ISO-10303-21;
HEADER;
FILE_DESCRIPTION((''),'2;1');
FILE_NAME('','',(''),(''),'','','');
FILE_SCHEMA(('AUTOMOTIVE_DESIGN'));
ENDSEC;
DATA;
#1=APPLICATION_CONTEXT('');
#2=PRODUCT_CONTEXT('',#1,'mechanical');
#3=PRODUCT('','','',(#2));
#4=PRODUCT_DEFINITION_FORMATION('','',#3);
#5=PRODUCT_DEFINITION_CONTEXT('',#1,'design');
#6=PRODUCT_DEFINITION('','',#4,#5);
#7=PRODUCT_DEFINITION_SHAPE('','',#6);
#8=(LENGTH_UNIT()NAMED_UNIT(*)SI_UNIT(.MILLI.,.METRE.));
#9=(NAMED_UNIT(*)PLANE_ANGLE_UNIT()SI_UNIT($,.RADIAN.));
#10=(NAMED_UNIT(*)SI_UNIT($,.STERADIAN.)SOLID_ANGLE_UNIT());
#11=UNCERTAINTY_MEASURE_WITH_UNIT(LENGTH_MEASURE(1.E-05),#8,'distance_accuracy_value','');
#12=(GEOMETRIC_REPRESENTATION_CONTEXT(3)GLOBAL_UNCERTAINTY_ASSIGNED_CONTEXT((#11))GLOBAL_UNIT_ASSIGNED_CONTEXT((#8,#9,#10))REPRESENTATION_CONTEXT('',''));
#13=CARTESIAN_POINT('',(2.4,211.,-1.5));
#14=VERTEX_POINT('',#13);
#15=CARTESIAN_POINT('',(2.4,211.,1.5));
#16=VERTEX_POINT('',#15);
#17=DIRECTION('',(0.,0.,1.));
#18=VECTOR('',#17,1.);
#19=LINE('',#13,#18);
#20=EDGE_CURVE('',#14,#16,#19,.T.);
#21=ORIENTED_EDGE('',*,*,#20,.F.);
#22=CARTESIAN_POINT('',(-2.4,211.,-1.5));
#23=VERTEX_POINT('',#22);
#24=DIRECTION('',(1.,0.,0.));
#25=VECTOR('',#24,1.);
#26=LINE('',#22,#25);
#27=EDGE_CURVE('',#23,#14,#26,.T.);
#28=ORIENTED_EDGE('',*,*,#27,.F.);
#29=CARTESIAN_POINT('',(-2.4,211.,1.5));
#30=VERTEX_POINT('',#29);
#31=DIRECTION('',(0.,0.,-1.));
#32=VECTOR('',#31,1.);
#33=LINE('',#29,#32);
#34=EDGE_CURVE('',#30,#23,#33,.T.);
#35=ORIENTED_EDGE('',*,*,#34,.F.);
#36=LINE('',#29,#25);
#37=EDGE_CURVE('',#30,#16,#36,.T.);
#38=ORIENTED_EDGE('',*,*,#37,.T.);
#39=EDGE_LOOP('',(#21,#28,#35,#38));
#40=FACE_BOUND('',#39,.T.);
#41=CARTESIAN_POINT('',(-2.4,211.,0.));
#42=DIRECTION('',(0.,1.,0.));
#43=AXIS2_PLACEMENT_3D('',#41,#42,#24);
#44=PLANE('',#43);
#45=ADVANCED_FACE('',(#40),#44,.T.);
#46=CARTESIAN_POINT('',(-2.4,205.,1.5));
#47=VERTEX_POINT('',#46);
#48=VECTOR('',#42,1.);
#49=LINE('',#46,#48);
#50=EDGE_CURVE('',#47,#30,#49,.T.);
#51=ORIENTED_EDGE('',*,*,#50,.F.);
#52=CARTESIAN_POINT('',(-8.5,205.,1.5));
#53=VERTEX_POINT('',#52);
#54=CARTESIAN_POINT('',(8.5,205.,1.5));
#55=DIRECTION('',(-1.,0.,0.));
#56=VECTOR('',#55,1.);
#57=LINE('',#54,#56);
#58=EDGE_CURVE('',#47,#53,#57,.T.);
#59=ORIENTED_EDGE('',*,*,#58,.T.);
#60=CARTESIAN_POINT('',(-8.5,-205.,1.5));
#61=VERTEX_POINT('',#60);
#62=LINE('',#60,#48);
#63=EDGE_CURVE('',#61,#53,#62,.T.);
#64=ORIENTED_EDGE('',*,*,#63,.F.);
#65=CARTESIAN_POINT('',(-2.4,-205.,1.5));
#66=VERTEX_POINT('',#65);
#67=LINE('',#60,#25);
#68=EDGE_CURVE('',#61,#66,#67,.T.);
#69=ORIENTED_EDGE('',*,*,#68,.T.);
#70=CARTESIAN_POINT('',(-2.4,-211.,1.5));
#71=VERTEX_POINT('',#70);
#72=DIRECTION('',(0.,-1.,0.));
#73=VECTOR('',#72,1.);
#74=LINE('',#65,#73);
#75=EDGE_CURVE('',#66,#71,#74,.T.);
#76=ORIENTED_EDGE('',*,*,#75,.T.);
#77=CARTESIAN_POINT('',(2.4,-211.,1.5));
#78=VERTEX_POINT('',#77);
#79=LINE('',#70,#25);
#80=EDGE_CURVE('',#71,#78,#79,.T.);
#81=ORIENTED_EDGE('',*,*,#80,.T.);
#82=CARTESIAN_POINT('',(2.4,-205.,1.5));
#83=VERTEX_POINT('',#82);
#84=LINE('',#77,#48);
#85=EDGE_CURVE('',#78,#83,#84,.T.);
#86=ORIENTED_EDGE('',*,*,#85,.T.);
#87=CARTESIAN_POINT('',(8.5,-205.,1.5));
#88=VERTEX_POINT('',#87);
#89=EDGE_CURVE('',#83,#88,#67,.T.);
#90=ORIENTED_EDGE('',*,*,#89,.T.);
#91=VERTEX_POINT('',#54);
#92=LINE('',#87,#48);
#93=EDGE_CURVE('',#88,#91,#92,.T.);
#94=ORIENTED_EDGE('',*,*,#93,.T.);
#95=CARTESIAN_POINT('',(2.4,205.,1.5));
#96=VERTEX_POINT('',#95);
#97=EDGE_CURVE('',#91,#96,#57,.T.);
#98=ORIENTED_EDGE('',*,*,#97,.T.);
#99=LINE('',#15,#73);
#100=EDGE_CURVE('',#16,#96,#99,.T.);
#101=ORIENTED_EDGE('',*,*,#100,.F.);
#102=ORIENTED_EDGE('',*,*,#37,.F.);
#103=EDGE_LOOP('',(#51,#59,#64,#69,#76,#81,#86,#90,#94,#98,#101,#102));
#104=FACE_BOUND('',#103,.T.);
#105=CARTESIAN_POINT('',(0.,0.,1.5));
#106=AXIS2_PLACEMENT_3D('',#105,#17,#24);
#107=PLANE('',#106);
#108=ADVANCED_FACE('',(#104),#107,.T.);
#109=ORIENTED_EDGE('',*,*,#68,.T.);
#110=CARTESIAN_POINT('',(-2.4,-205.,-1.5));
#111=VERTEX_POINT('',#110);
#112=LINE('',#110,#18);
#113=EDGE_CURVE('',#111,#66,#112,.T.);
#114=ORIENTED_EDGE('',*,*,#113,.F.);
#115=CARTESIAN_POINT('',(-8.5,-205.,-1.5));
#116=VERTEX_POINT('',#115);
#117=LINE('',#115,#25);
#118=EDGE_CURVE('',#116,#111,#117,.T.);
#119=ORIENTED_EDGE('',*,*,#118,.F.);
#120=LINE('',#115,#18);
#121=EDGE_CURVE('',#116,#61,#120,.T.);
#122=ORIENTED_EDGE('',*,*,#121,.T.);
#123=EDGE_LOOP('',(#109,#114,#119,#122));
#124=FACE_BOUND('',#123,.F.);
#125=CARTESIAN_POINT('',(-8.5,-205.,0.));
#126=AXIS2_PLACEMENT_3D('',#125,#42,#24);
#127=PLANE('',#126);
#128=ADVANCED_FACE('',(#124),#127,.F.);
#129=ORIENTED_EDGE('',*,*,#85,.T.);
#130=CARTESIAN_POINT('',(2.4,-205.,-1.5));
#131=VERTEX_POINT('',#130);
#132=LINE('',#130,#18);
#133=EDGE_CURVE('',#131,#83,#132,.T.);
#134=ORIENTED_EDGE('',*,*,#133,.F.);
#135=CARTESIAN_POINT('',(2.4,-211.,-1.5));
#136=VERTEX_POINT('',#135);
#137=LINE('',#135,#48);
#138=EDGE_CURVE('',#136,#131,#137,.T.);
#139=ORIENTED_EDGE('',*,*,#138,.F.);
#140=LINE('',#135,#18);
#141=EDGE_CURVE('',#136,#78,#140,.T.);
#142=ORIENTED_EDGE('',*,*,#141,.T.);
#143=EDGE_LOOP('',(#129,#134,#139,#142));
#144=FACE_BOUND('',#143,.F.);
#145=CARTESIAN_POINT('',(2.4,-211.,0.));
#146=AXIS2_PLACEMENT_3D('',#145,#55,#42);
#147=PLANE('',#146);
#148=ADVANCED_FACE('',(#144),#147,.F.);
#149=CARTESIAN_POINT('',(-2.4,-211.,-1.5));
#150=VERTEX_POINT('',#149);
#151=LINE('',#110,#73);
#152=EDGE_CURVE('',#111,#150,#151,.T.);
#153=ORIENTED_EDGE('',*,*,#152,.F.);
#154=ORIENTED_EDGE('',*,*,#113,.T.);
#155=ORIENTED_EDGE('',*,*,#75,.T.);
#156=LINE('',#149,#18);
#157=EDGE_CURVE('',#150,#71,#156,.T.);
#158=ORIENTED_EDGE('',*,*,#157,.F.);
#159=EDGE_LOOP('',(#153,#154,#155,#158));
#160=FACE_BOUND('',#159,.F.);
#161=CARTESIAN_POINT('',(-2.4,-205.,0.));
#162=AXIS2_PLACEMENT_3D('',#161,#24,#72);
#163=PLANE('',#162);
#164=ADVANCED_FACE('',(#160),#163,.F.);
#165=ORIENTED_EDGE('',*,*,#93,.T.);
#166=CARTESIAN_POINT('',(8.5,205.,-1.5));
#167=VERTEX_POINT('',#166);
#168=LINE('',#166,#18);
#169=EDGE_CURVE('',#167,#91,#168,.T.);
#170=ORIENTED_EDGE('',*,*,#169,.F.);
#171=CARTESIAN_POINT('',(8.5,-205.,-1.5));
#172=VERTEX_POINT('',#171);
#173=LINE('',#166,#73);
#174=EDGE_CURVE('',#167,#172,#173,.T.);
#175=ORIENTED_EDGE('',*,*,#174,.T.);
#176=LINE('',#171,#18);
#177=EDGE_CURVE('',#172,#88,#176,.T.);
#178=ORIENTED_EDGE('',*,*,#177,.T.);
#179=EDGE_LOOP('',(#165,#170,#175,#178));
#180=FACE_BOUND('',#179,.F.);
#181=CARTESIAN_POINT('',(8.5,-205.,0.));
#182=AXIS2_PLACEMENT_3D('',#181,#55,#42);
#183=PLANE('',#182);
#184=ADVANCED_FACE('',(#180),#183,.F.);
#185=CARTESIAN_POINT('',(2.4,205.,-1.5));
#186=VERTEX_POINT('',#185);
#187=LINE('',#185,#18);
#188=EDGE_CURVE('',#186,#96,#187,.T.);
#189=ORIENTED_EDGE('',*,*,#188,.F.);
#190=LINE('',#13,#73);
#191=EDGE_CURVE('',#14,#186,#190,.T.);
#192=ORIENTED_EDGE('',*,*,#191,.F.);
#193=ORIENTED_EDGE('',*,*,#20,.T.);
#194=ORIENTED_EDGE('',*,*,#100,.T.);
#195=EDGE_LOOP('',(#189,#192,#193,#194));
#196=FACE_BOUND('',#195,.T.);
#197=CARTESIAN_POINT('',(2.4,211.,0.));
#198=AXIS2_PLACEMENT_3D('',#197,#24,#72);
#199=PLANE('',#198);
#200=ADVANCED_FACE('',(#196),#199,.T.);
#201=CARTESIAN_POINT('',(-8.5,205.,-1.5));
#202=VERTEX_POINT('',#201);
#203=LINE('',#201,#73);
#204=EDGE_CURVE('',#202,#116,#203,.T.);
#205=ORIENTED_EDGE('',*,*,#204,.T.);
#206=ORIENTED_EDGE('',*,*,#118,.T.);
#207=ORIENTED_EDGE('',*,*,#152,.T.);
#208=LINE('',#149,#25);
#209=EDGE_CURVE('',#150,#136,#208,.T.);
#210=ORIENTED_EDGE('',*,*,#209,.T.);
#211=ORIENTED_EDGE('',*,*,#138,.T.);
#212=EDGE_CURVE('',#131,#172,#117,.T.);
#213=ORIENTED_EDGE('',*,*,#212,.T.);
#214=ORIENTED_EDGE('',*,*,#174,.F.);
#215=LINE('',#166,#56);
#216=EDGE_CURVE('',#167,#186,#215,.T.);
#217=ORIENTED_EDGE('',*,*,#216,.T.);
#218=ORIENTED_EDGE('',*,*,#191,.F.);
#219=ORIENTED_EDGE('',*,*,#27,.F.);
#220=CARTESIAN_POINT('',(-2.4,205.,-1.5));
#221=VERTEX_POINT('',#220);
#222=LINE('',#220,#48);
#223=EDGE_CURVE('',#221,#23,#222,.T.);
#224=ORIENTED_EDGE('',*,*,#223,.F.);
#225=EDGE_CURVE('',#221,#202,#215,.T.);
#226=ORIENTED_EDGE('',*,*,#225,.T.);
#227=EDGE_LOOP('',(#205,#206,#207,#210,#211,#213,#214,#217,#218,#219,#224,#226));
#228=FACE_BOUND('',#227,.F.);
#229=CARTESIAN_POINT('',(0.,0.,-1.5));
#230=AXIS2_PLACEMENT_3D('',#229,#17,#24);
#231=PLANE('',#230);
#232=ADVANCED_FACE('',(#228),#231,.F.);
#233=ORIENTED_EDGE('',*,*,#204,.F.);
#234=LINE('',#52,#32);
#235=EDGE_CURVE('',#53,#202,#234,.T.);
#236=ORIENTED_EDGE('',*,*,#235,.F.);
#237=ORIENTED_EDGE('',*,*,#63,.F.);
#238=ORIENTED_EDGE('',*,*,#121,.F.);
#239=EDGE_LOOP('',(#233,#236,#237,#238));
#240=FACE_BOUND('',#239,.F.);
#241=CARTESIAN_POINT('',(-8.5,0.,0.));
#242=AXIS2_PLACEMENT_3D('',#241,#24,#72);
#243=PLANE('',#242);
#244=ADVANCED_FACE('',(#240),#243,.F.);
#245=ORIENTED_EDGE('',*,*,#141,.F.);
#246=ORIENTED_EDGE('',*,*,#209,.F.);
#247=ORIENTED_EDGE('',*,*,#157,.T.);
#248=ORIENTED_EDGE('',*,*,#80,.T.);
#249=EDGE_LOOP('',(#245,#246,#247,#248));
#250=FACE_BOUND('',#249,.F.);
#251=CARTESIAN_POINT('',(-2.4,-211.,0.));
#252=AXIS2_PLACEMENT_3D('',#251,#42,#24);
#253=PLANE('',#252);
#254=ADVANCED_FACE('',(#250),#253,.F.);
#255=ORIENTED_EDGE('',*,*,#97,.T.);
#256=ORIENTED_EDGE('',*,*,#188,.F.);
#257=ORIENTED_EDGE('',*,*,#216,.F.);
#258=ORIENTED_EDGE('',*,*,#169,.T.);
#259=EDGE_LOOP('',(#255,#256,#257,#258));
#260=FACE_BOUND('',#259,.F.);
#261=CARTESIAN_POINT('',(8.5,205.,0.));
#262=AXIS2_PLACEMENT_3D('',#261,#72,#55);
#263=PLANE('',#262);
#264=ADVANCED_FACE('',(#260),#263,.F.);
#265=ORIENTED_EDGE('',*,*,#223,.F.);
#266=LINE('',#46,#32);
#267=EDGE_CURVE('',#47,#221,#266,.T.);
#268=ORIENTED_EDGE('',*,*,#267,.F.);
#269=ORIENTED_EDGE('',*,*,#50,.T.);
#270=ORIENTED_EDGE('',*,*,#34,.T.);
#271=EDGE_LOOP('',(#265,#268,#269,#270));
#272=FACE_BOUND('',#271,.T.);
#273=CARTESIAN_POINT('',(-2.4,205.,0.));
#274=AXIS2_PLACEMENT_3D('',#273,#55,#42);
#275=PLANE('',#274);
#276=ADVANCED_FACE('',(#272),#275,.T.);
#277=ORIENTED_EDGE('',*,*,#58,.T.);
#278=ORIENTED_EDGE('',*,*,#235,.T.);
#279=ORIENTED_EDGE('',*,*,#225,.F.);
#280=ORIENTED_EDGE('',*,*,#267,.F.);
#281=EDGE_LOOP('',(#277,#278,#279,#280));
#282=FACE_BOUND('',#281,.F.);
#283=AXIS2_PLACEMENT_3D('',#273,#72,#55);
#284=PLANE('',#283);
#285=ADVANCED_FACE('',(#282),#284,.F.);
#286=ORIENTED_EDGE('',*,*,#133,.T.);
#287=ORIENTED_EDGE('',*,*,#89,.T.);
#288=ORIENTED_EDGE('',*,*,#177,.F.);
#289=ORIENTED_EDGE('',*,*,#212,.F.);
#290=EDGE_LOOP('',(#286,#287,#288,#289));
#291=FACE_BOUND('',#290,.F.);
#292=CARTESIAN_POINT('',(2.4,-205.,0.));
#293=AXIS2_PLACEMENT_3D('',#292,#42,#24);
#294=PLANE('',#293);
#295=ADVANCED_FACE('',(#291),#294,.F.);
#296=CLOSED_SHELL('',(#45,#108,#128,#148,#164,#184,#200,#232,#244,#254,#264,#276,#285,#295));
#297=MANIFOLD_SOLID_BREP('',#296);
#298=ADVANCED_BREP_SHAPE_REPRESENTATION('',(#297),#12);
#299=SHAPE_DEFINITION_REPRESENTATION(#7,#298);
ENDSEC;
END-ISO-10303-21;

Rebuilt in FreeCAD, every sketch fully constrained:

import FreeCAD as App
import Part
import Sketcher
Q = App.Units.Quantity


def add_polygon(sketch, points):
    """Adds a closed chain of lines whose ends are joined by coincident constraints."""
    first, n = sketch.GeometryCount, len(points)
    for a, b in zip(points, points[1:] + points[:1]):
        sketch.addGeometry(Part.LineSegment(App.Vector(*a, 0), App.Vector(*b, 0)), False)
    for i in range(n):
        sketch.addConstraint(Sketcher.Constraint("Coincident", first + i, 2, first + (i + 1) % n, 1))

doc = App.newDocument("Part")
body = doc.addObject("PartDesign::Body", "Body")

sketch1 = doc.addObject("Sketcher::SketchObject", "Sketch")
body.addObject(sketch1)
sketch1.AttachmentSupport = (doc.XY_Plane, [""])
sketch1.MapMode = "FlatFace"
add_polygon(sketch1, [(-8.5, -205), (-2.4, -205), (-2.4, -211), (2.4, -211), (2.4, -205), (8.5, -205), (8.5, 205), (2.4, 205), (2.4, 211), (-2.4, 211), (-2.4, 205), (-8.5, 205)])
sketch1.addConstraint([
    Sketcher.Constraint("Horizontal", 0),
    Sketcher.Constraint("Vertical", 1),
    Sketcher.Constraint("Horizontal", 2),
    Sketcher.Constraint("Vertical", 3),
    Sketcher.Constraint("Horizontal", 4),
    Sketcher.Constraint("Vertical", 5),
    Sketcher.Constraint("Horizontal", 6),
    Sketcher.Constraint("Vertical", 7),
    Sketcher.Constraint("Horizontal", 8),
    Sketcher.Constraint("Vertical", 9),
    Sketcher.Constraint("Horizontal", 10),
    Sketcher.Constraint("Vertical", 11),
    Sketcher.Constraint("Symmetric", 0, 2, 6, 2, -1, 1),
    Sketcher.Constraint("Symmetric", 2, 2, 8, 2, -1, 1),
    Sketcher.Constraint("Symmetric", 4, 2, 10, 2, -1, 1),
    Sketcher.Constraint("Symmetric", 0, 2, 3, 2, -2),
    Sketcher.Constraint("DistanceY", 1, 2, 1, 1, Q("6 mm")),
    Sketcher.Constraint("DistanceY", 5, 1, 5, 2, Q("410 mm")),
    Sketcher.Constraint("DistanceX", 2, 1, 2, 2, Q("4.8 mm")),
    Sketcher.Constraint("DistanceX", 10, 2, 5, 2, Q("17 mm")),
])
pad1 = doc.addObject("PartDesign::Pad", "Pad")
body.addObject(pad1)
pad1.Profile = sketch1
pad1.Length = 3
pad1.Midplane = True

doc.recompute()
